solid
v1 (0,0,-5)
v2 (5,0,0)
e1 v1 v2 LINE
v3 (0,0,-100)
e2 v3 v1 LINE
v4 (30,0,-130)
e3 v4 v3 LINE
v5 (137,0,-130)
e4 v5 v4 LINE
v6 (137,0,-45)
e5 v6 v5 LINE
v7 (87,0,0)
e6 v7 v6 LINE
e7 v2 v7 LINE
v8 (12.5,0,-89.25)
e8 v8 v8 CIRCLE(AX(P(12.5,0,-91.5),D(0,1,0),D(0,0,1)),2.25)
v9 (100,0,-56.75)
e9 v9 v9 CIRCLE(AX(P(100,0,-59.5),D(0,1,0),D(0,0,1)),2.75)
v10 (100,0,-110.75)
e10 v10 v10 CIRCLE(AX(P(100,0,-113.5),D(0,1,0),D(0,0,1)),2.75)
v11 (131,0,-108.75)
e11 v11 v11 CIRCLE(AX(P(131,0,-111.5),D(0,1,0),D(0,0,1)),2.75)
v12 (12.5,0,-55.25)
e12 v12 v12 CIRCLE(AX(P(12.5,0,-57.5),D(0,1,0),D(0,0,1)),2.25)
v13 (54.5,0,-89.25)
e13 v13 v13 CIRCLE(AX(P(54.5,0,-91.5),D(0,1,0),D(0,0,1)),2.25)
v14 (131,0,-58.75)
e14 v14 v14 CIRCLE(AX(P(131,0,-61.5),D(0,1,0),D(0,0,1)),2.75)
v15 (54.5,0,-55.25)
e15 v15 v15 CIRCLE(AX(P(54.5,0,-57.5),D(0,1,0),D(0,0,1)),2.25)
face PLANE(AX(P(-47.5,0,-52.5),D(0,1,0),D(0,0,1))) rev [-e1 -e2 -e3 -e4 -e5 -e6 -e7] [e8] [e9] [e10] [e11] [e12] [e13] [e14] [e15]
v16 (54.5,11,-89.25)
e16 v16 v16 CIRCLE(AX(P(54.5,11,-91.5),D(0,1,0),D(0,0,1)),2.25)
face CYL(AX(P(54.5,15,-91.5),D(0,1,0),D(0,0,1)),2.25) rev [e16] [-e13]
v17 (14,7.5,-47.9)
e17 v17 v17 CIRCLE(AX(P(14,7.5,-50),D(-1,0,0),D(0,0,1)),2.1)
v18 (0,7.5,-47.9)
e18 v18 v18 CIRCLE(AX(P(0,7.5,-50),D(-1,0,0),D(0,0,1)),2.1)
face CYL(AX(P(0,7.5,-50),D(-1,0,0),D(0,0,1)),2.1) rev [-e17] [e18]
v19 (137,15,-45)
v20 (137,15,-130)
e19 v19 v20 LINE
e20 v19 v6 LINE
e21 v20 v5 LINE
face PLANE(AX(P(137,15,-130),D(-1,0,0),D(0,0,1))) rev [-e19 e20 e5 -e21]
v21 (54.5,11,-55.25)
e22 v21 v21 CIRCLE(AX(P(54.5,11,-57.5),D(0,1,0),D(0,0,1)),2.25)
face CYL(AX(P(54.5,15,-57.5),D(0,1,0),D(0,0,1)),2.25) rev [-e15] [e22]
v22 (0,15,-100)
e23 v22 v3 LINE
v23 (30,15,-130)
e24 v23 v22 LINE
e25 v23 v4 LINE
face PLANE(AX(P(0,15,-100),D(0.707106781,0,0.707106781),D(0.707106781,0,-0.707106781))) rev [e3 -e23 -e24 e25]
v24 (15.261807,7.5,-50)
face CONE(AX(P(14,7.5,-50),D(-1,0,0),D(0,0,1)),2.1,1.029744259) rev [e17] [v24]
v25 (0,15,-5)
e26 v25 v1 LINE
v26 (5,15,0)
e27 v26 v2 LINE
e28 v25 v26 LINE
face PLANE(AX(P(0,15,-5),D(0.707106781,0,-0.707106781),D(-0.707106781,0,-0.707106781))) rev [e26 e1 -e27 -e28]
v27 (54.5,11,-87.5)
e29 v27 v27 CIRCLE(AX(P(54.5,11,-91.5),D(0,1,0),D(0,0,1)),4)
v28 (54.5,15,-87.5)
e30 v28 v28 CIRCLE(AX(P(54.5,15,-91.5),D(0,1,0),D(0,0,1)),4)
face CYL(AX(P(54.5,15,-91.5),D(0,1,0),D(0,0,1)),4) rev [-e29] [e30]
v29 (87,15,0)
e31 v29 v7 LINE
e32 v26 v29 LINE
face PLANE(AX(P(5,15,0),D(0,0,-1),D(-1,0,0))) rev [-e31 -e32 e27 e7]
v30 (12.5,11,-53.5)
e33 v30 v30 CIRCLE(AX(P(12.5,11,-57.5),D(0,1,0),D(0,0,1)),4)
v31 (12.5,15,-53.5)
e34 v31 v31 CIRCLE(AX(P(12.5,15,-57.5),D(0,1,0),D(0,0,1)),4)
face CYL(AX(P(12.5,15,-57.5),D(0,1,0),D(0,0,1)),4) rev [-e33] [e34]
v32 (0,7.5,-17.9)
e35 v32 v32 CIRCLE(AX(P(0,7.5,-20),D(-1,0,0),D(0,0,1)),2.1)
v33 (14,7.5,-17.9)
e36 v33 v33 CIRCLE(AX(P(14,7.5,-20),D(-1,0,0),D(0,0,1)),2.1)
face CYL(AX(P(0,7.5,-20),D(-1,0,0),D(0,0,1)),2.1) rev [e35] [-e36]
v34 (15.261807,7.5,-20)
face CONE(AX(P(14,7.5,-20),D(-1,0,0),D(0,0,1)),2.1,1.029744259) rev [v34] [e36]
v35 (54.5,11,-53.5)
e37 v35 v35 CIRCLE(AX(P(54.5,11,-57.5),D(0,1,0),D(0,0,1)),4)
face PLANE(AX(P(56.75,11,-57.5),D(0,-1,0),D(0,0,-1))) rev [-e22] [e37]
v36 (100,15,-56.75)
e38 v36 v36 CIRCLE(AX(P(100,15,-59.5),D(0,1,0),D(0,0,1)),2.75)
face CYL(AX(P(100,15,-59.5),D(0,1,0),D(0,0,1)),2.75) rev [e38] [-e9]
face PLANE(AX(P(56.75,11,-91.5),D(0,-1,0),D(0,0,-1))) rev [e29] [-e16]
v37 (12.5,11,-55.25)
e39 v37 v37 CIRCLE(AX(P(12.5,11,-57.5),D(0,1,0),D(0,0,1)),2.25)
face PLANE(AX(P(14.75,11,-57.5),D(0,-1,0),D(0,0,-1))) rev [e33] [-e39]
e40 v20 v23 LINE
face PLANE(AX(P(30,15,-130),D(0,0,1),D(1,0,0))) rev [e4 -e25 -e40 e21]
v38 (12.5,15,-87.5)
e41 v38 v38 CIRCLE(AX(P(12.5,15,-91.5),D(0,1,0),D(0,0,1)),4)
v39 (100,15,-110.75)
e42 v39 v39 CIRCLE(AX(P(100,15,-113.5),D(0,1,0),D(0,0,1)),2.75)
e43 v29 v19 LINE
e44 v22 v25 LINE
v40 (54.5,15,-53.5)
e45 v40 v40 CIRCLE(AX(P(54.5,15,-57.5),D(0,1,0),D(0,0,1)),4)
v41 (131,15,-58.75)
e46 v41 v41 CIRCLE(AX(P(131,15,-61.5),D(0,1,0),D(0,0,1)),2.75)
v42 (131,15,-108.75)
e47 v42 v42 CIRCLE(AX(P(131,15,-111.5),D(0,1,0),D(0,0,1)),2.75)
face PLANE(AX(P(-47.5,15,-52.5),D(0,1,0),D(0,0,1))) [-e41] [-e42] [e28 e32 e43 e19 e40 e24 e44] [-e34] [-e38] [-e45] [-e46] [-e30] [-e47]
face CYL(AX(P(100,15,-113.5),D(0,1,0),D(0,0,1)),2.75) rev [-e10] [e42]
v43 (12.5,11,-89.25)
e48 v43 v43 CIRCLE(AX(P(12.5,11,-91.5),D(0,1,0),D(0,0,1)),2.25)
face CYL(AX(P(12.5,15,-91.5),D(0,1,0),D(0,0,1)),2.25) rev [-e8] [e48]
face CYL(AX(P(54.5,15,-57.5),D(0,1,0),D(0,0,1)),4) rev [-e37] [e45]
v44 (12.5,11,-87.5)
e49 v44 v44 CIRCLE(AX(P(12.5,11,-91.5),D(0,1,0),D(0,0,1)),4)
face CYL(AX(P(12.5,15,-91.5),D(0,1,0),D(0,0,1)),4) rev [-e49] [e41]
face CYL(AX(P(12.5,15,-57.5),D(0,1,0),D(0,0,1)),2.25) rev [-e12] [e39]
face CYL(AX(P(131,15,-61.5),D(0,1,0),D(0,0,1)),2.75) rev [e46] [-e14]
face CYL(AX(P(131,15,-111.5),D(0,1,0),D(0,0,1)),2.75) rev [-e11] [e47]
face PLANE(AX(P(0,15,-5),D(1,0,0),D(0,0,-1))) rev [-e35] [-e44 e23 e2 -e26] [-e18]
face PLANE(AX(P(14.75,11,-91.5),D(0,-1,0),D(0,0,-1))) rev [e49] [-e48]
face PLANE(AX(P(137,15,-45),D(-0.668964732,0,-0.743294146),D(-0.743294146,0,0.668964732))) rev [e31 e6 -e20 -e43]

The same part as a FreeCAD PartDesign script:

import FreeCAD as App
import Part
import Sketcher
Q = App.Units.Quantity


def add_polygon(sketch, points):
    """Adds a closed chain of lines whose ends are joined by coincident constraints."""
    first, n = sketch.GeometryCount, len(points)
    for a, b in zip(points, points[1:] + points[:1]):
        sketch.addGeometry(Part.LineSegment(App.Vector(*a, 0), App.Vector(*b, 0)), False)
    for i in range(n):
        sketch.addConstraint(Sketcher.Constraint("Coincident", first + i, 2, first + (i + 1) % n, 1))

doc = App.newDocument("Part")
body = doc.addObject("PartDesign::Body", "Body")

# Sketch on XZ plane
sketch1 = body.newObject("Sketcher::SketchObject", "Sketch")
sketch1.AttachmentSupport = (doc.getObject("XZ_Plane"), [""])
sketch1.MapMode = "FlatFace"
add_polygon(sketch1, [(30, -130), (0, -100), (0, -5), (5, 0), (87, 0), (137, -45), (137, -130)])  # lines 0-6
sketch1.addConstraint([
    Sketcher.Constraint("Vertical", 1),
    Sketcher.Constraint("Horizontal", 3),
    Sketcher.Constraint("Vertical", 5),
    Sketcher.Constraint("Horizontal", 6),
    Sketcher.Constraint("PointOnObject", 0, 2, -2),
    Sketcher.Constraint("PointOnObject", 2, 2, -1),
    Sketcher.Constraint("Perpendicular", 0, 2),
    Sketcher.Constraint("DistanceX", 3, 1, 3, 2, 82.0),
    Sketcher.Constraint("DistanceX", 6, 2, 6, 1, 107.0),
    Sketcher.Constraint("DistanceY", 1, 1, 1, 2, 95.0),
    Sketcher.Constraint("DistanceY", 5, 2, 5, 1, 85.0),
    Sketcher.Constraint("Angle", 0, Q("135 deg")),
    Sketcher.Constraint("DistanceY", 0, 2, -1, 1, 100.0),
    Sketcher.Constraint("DistanceX", -1, 1, 4, 2, 137.0),
])
pad1 = body.newObject("PartDesign::Pad", "Pad")
pad1.Profile = sketch1
pad1.Length = 15
pad1.Reversed = True

# Sketch on XZ plane
sketch2 = body.newObject("Sketcher::SketchObject", "Sketch001")
sketch2.AttachmentSupport = (doc.getObject("XZ_Plane"), [""])
sketch2.MapMode = "FlatFace"
sketch2.AttachmentOffset = App.Placement(App.Vector(0, 0, -15), App.Rotation())
sketch2.addGeometry([
    Part.Circle(App.Vector(100, -59.5, 0), App.Vector(0, 0, 1), 2.8),
    Part.Circle(App.Vector(100, -113.5, 0), App.Vector(0, 0, 1), 2.8),
], False)
sketch2.addConstraint([
    Sketcher.Constraint("Equal", 0, 1),
    Sketcher.Constraint("Vertical", 0, 3, 1, 3),
    Sketcher.Constraint("Diameter", 0, 5.5),
    Sketcher.Constraint("DistanceX", -1, 1, 0, 3, 100.0),
    Sketcher.Constraint("DistanceY", 1, 3, 0, 3, 54.0),
    Sketcher.Constraint("DistanceY", 0, 3, -1, 1, 59.5),
])
doc.recompute()
hole = body.newObject("PartDesign::Hole", "Hole")
hole.Profile = sketch2
hole.ThreadType = "None"
hole.Diameter = 5.5
hole.DepthType = "ThroughAll"
hole.Reversed = True

# Sketch on XZ plane
sketch3 = body.newObject("Sketcher::SketchObject", "Sketch002")
sketch3.AttachmentSupport = (doc.getObject("XZ_Plane"), [""])
sketch3.MapMode = "FlatFace"
sketch3.AttachmentOffset = App.Placement(App.Vector(0, 0, -15), App.Rotation())
sketch3.addGeometry([
    Part.Circle(App.Vector(131, -111.5, 0), App.Vector(0, 0, 1), 2.8),
    Part.Circle(App.Vector(131, -61.5, 0), App.Vector(0, 0, 1), 2.8),
], False)
sketch3.addConstraint([
    Sketcher.Constraint("Equal", 0, 1),
    Sketcher.Constraint("Vertical", 0, 3, 1, 3),
    Sketcher.Constraint("Diameter", 0, 5.5),
    Sketcher.Constraint("DistanceX", -1, 1, 0, 3, 131.0),
    Sketcher.Constraint("DistanceY", 0, 3, 1, 3, 50.0),
    Sketcher.Constraint("DistanceY", 0, 3, -1, 1, 111.5),
])
doc.recompute()
hole2 = body.newObject("PartDesign::Hole", "Hole001")
hole2.Profile = sketch3
hole2.ThreadType = "None"
hole2.Diameter = 5.5
hole2.DepthType = "ThroughAll"
hole2.Reversed = True

# Sketch on XZ plane
sketch4 = body.newObject("Sketcher::SketchObject", "Sketch003")
sketch4.AttachmentSupport = (doc.getObject("XZ_Plane"), [""])
sketch4.MapMode = "FlatFace"
sketch4.AttachmentOffset = App.Placement(App.Vector(0, 0, -15), App.Rotation())
sketch4.addGeometry([
    Part.Circle(App.Vector(12.5, -91.5, 0), App.Vector(0, 0, 1), 2.2),
    Part.Circle(App.Vector(12.5, -57.5, 0), App.Vector(0, 0, 1), 2.2),
    Part.Circle(App.Vector(54.5, -57.5, 0), App.Vector(0, 0, 1), 2.2),
    Part.Circle(App.Vector(54.5, -91.5, 0), App.Vector(0, 0, 1), 2.2),
], False)
sketch4.addConstraint([
    Sketcher.Constraint("Equal", 0, 1),
    Sketcher.Constraint("Equal", 1, 2),
    Sketcher.Constraint("Equal", 2, 3),
    Sketcher.Constraint("Horizontal", 1, 3, 2, 3),
    Sketcher.Constraint("Horizontal", 0, 3, 3, 3),
    Sketcher.Constraint("Vertical", 0, 3, 1, 3),
    Sketcher.Constraint("Vertical", 2, 3, 3, 3),
    Sketcher.Constraint("Diameter", 0, 4.5),
    Sketcher.Constraint("DistanceY", 0, 3, 1, 3, 34.0),
    Sketcher.Constraint("DistanceX", 1, 3, 2, 3, 42.0),
    Sketcher.Constraint("DistanceX", -1, 1, 0, 3, 12.5),
    Sketcher.Constraint("DistanceY", 0, 3, -1, 1, 91.5),
])
doc.recompute()
hole3 = body.newObject("PartDesign::Hole", "Hole002")
hole3.Profile = sketch4
hole3.ThreadType = "None"
hole3.Diameter = 4.5
hole3.DepthType = "ThroughAll"
hole3.HoleCutType = "Counterbore"
hole3.HoleCutDiameter = 8
hole3.HoleCutDepth = 4
hole3.Reversed = True

# Sketch on YZ plane
sketch5 = body.newObject("Sketcher::SketchObject", "Sketch004")
sketch5.AttachmentSupport = (doc.getObject("YZ_Plane"), [""])
sketch5.MapMode = "FlatFace"
sketch5.addGeometry([
    Part.Circle(App.Vector(7.5, -50, 0), App.Vector(0, 0, 1), 2.1),
    Part.Circle(App.Vector(7.5, -20, 0), App.Vector(0, 0, 1), 2.1),
], False)
sketch5.addConstraint([
    Sketcher.Constraint("Equal", 0, 1),
    Sketcher.Constraint("Vertical", 0, 3, 1, 3),
    Sketcher.Constraint("Diameter", 0, 4.2),
    Sketcher.Constraint("DistanceY", 0, 3, -1, 1, 50.0),
    Sketcher.Constraint("DistanceY", 1, 3, -1, 1, 20.0),
    Sketcher.Constraint("DistanceX", -1, 1, 0, 3, 7.5),
])
doc.recompute()
hole4 = body.newObject("PartDesign::Hole", "Hole003")
hole4.Profile = sketch5
hole4.ThreadType = "None"
hole4.Diameter = 4.2
hole4.DepthType = "Dimension"
hole4.Depth = 14
hole4.DrillPoint = "Angled"
hole4.DrillPointAngle = 118
hole4.Reversed = True

doc.recompute()
